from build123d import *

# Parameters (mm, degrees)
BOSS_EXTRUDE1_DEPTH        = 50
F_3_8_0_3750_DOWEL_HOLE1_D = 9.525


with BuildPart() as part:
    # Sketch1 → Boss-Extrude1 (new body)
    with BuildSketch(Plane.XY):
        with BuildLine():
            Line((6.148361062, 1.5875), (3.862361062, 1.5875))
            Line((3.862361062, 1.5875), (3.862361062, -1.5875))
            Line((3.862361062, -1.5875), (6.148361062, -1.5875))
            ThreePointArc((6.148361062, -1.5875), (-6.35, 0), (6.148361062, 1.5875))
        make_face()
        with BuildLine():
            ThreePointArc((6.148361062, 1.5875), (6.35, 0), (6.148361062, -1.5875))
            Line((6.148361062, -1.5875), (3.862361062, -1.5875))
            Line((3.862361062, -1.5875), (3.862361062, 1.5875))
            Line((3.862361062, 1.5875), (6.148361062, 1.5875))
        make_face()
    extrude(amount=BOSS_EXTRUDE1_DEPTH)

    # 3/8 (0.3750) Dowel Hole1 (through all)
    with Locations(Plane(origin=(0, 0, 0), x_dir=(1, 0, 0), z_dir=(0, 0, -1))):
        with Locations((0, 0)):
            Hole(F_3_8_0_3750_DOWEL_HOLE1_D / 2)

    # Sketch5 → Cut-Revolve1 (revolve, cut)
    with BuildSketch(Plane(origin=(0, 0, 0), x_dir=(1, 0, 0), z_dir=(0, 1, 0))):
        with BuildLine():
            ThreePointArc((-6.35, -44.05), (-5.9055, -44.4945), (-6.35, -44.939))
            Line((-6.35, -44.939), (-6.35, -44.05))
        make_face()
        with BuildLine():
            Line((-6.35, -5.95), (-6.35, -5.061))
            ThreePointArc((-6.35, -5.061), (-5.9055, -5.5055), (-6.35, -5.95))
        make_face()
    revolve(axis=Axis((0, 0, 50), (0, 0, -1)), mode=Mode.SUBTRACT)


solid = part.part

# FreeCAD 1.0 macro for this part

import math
import FreeCAD as App
import Part
import Sketcher
from FreeCAD import Vector
Q = App.Units.Quantity

doc = App.newDocument("Part")
body = doc.addObject("PartDesign::Body", "Body")

# Sketch on XY plane
sketch1 = body.newObject("Sketcher::SketchObject", "Sketch")
sketch1.AttachmentSupport = (doc.getObject("XY_Plane"), [""])
sketch1.MapMode = "FlatFace"
sketch1.addGeometry([
    Part.ArcOfCircle(Part.Circle(Vector(0, 0, 0), Vector(0, 0, 1), 6.3), math.radians(14), math.radians(346)),
    Part.ArcOfCircle(Part.Circle(Vector(0, 0, 0), Vector(0, 0, 1), 6.3), math.radians(-14), math.radians(14)),
], False)
sketch1.addConstraint([
    Sketcher.Constraint("Tangent", 0, 1, 1, 2),
    Sketcher.Constraint("Coincident", 1, 1, 0, 2),
    Sketcher.Constraint("Coincident", 0, 3, -1, 1),
    Sketcher.Constraint("Vertical", 0, 1, 1, 1),
    Sketcher.Constraint("Radius", 0, Q("0.25 in")),
    Sketcher.Constraint("DistanceY", -1, 1, 0, 1, Q("0.0625 in")),
])
pad1 = body.newObject("PartDesign::Pad", "Pad")
pad1.Profile = sketch1
pad1.Length = 50

# Sketch on XY plane
sketch2 = body.newObject("Sketcher::SketchObject", "Sketch001")
sketch2.AttachmentSupport = (doc.getObject("XY_Plane"), [""])
sketch2.MapMode = "FlatFace"
sketch2.addGeometry(Part.Circle(Vector(0, 0, 0), Vector(0, 0, 1), 4.8), False)
sketch2.addConstraint([
    Sketcher.Constraint("Coincident", 0, 3, -1, 1),
    Sketcher.Constraint("Diameter", 0, Q("0.375 in")),
])
doc.recompute()
hole = body.newObject("PartDesign::Hole", "Hole")
hole.Profile = sketch2
hole.ThreadType = "None"
hole.Diameter = Q("0.375 in")
hole.DepthType = "ThroughAll"
hole.Reversed = True

# Sketch on XZ plane
sketch3 = body.newObject("Sketcher::SketchObject", "Sketch002")
sketch3.AttachmentSupport = (doc.getObject("XZ_Plane"), [""])
sketch3.MapMode = "FlatFace"
sketch3.addGeometry([
    Part.ArcOfCircle(Part.Circle(Vector(-6.35, 44.49, 0), Vector(0, 0, 1), 0.44), math.radians(-90), math.radians(90)),
    Part.LineSegment(Vector(-6.35, 44.05, 0), Vector(-6.35, 44.94, 0)),
    Part.LineSegment(Vector(-6.35, 5.06, 0), Vector(-6.35, 5.95, 0)),
    Part.ArcOfCircle(Part.Circle(Vector(-6.35, 5.51, 0), Vector(0, 0, 1), 0.44), math.radians(-90), math.radians(90)),
], False)
sketch3.addConstraint([
    Sketcher.Constraint("Coincident", 0, 1, 1, 1),
    Sketcher.Constraint("Coincident", 1, 2, 0, 2),
    Sketcher.Constraint("Coincident", 2, 1, 3, 1),
    Sketcher.Constraint("Coincident", 3, 2, 2, 2),
    Sketcher.Constraint("Vertical", 1),
    Sketcher.Constraint("Vertical", 2),
    Sketcher.Constraint("Equal", 0, 3),
    Sketcher.Constraint("Vertical", 0, 3, 3, 3),
    Sketcher.Constraint("Vertical", 3, 3, 0, 1),
    Sketcher.Constraint("Vertical", 1, 2, 2, 1),
    Sketcher.Constraint("Radius", 0, Q("0.0175 in")),
    Sketcher.Constraint("DistanceY", 3, 2, 0, 1, Q("1.5 in")),
    Sketcher.Constraint("DistanceX", 0, 3, -1, 1, Q("0.25 in")),
    Sketcher.Constraint("DistanceY", -1, 1, 0, 3, 44.4945),
])
groove = body.newObject("PartDesign::Groove", "Groove")
groove.Profile = sketch3
groove.ReferenceAxis = (sketch3, ["V_Axis"])
groove.Angle = 360

doc.recompute()
